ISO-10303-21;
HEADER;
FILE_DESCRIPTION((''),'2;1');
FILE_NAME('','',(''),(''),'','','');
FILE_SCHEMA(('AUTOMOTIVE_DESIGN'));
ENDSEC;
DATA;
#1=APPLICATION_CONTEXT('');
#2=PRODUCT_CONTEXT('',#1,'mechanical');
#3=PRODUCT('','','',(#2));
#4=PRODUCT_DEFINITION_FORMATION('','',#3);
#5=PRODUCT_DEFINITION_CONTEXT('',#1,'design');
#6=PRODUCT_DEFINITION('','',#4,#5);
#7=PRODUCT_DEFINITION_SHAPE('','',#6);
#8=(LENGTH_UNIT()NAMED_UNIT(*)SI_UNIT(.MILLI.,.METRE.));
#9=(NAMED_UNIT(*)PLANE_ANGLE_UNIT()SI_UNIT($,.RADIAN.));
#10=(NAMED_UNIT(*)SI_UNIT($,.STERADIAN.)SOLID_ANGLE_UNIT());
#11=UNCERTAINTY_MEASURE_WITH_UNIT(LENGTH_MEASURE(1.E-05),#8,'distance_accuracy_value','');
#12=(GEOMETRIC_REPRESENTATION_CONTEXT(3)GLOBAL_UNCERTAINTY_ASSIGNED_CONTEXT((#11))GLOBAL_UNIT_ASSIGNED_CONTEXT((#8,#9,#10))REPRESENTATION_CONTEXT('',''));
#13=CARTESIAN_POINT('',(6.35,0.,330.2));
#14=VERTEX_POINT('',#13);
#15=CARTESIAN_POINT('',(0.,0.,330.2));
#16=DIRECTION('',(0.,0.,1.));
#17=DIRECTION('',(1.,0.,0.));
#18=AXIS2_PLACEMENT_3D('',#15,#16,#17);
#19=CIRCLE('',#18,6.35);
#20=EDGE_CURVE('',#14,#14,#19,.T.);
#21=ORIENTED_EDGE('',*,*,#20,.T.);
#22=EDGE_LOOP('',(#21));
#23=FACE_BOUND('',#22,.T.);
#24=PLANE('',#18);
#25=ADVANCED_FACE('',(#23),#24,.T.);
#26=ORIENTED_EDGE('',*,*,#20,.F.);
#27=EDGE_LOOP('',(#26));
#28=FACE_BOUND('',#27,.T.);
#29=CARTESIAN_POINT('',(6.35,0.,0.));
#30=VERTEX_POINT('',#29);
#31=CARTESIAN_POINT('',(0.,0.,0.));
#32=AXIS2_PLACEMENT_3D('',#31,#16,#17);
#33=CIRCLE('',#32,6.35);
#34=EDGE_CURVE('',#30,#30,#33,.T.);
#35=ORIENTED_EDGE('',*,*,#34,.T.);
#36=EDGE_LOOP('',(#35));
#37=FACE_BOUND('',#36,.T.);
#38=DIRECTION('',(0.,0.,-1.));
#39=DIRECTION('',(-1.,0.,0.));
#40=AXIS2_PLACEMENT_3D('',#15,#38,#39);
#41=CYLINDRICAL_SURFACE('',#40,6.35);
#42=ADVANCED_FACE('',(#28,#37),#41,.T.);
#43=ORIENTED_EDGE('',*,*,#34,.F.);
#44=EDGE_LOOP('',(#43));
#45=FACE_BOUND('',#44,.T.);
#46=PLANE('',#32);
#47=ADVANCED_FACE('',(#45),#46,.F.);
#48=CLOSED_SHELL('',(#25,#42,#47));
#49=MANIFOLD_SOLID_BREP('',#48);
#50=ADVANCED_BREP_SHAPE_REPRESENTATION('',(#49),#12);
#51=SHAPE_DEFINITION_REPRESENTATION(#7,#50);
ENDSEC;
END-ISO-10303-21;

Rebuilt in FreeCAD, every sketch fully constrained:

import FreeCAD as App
import Part
import Sketcher
Q = App.Units.Quantity

doc = App.newDocument("Part")
body = doc.addObject("PartDesign::Body", "Body")

# Sketch on XY plane
sketch1 = body.newObject("Sketcher::SketchObject", "Sketch")
sketch1.AttachmentSupport = (doc.getObject("XY_Plane"), [""])
sketch1.MapMode = "FlatFace"
sketch1.addGeometry(Part.Circle(App.Vector(0, 0, 0), App.Vector(0, 0, 1), 6), False)
sketch1.addConstraint([
    Sketcher.Constraint("Coincident", 0, 3, -1, 1),
    Sketcher.Constraint("Diameter", 0, Q("0.5 in")),
])
pad1 = body.newObject("PartDesign::Pad", "Pad")
pad1.Profile = sketch1
pad1.Length = Q("13 in")

doc.recompute()
